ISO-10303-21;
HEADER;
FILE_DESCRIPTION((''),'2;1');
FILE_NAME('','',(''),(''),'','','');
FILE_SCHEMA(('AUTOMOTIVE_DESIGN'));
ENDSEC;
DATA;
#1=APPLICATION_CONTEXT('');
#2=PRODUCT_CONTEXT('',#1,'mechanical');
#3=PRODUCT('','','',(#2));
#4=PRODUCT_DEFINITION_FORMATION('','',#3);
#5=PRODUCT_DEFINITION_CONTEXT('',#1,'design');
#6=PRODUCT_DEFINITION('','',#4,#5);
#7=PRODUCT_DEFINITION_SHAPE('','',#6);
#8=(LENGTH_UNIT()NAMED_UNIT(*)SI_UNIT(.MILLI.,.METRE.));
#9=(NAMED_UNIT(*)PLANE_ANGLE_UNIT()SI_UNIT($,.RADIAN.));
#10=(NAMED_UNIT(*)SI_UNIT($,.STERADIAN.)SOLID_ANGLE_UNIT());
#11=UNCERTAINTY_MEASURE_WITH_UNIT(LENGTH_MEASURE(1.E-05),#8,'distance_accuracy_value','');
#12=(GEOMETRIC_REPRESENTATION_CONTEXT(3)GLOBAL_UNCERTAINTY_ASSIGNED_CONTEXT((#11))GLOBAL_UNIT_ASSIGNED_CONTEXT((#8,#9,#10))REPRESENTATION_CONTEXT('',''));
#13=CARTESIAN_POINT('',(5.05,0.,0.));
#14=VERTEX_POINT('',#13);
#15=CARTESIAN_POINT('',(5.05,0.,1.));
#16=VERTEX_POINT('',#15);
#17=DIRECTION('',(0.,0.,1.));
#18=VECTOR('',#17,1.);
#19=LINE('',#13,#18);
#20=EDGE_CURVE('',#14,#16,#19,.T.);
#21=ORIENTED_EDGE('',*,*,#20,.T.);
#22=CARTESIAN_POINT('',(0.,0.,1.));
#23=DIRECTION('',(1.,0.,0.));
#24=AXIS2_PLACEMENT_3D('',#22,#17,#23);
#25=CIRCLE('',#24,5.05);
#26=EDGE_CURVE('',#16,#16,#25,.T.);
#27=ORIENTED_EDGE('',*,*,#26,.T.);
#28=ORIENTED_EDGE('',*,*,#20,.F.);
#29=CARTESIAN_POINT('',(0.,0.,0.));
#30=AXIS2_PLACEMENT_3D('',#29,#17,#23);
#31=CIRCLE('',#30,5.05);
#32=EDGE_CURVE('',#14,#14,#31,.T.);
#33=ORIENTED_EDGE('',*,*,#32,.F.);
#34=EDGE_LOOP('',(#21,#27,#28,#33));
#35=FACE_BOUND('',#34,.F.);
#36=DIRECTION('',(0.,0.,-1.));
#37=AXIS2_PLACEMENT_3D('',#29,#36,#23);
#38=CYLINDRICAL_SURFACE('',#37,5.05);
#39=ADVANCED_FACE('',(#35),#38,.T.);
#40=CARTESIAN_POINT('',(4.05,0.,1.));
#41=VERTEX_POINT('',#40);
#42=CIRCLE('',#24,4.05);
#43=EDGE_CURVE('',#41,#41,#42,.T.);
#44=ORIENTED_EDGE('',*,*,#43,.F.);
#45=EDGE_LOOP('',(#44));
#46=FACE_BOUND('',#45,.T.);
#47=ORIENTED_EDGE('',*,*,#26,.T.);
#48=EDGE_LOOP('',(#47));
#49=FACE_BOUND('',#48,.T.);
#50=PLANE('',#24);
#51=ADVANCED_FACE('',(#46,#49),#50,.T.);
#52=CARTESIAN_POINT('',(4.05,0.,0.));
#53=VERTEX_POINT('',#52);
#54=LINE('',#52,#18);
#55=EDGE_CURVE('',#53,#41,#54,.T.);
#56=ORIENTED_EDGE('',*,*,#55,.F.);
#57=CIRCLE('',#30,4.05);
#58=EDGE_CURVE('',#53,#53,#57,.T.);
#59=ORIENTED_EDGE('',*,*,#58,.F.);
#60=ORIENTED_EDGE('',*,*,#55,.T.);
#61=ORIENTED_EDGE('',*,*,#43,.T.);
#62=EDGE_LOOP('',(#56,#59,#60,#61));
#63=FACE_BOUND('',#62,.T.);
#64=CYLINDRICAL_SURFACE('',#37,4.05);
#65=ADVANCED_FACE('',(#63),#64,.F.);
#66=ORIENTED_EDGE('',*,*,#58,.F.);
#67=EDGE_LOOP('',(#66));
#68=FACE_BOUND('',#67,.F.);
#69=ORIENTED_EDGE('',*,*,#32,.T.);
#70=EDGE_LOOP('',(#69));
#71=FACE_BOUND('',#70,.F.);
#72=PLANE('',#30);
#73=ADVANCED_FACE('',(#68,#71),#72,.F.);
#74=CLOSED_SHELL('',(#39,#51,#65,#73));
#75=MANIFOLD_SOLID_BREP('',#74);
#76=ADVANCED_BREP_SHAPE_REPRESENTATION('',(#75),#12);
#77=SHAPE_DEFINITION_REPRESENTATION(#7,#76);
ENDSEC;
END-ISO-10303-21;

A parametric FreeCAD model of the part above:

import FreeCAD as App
import Part
import Sketcher
from FreeCAD import Vector

doc = App.newDocument("Part")
body = doc.addObject("PartDesign::Body", "Body")

# Sketch on XY plane
sketch1 = body.newObject("Sketcher::SketchObject", "Sketch")
sketch1.AttachmentSupport = (doc.getObject("XY_Plane"), [""])
sketch1.MapMode = "FlatFace"
sketch1.addGeometry(Part.Circle(Vector(0, 0, 0), Vector(0, 0, 1), 5.05), False)
sketch1.addGeometry(Part.Circle(Vector(0, 0, 0), Vector(0, 0, 1), 4.05), False)
sketch1.addConstraint(Sketcher.Constraint("Coincident", 0, 3, -1, 1))
sketch1.addConstraint(Sketcher.Constraint("Coincident", 1, 3, -1, 1))
sketch1.addConstraint(Sketcher.Constraint("Diameter", 1, 8.1))
sketch1.addConstraint(Sketcher.Constraint("Diameter", 0, 10.1))
pad1 = body.newObject("PartDesign::Pad", "Pad")
pad1.Profile = sketch1
pad1.Length = 1

doc.recompute()
